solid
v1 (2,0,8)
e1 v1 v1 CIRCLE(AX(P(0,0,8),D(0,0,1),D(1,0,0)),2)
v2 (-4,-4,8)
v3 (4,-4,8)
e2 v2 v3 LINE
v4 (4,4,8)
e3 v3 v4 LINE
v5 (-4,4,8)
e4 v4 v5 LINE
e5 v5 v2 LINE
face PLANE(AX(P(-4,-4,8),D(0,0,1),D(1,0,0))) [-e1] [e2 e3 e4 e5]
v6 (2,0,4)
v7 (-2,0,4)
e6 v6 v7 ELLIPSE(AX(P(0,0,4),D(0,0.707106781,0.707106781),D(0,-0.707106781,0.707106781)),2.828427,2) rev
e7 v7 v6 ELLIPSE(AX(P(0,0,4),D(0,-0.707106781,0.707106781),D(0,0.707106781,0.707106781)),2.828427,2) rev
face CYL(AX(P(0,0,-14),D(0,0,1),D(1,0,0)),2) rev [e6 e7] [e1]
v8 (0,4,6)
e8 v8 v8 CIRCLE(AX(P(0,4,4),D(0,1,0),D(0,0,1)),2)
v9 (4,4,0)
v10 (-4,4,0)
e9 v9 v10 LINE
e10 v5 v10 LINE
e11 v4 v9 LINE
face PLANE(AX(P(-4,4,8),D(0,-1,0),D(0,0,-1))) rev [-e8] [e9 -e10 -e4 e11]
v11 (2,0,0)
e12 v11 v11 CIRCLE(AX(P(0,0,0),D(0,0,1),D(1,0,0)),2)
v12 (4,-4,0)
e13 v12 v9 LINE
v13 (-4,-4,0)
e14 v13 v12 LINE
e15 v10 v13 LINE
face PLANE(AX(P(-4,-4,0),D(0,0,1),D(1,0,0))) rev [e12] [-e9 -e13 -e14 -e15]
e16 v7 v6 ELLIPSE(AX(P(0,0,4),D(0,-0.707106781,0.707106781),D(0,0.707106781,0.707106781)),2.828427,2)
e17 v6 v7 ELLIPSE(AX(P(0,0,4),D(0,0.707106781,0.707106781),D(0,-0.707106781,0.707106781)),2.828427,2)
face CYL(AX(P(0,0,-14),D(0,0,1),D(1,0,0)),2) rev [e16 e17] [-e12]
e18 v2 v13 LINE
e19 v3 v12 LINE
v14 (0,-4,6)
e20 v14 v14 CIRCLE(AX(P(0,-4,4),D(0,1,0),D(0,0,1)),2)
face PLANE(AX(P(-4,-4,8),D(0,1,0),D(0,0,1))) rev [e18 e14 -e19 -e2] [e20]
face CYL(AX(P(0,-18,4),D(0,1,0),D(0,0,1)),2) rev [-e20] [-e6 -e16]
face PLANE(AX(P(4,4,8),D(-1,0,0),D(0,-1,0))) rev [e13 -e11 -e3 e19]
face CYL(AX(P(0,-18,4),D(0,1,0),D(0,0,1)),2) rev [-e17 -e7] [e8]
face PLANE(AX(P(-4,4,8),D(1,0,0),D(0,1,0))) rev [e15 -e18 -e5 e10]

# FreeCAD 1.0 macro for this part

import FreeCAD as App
import Part
import Sketcher

V = App.Vector

doc = App.newDocument("Part")
body = doc.addObject("PartDesign::Body", "Body")

# Sketch on XY plane
sketch1 = body.newObject("Sketcher::SketchObject", "Sketch")
sketch1.AttachmentSupport = (doc.getObject("XY_Plane"), [""])
sketch1.MapMode = "FlatFace"
sketch1.addGeometry(Part.LineSegment(V(-4, 4, 0), V(-4, -4, 0)), False)
sketch1.addGeometry(Part.LineSegment(V(-4, -4, 0), V(4, -4, 0)), False)
sketch1.addGeometry(Part.LineSegment(V(4, -4, 0), V(4, 4, 0)), False)
sketch1.addGeometry(Part.LineSegment(V(4, 4, 0), V(-4, 4, 0)), False)
sketch1.addConstraint(Sketcher.Constraint("Coincident", 0, 2, 1, 1))
sketch1.addConstraint(Sketcher.Constraint("Coincident", 1, 2, 2, 1))
sketch1.addConstraint(Sketcher.Constraint("Coincident", 2, 2, 3, 1))
sketch1.addConstraint(Sketcher.Constraint("Coincident", 3, 2, 0, 1))
sketch1.addConstraint(Sketcher.Constraint("Vertical", 0))
sketch1.addConstraint(Sketcher.Constraint("Horizontal", 1))
sketch1.addConstraint(Sketcher.Constraint("Vertical", 2))
sketch1.addConstraint(Sketcher.Constraint("Horizontal", 3))
sketch1.addConstraint(Sketcher.Constraint("Symmetric", 0, 2, 2, 2, -1, 1))
sketch1.addConstraint(Sketcher.Constraint("Equal", 3, 0))
sketch1.addConstraint(Sketcher.Constraint("DistanceX", 1, 1, 1, 2, 8.0))
pad1 = body.newObject("PartDesign::Pad", "Pad")
pad1.Profile = sketch1
pad1.Length = 8

# Sketch on XY plane
sketch2 = body.newObject("Sketcher::SketchObject", "Sketch001")
sketch2.AttachmentSupport = (doc.getObject("XY_Plane"), [""])
sketch2.MapMode = "FlatFace"
sketch2.AttachmentOffset = App.Placement(V(0, 0, 8), App.Rotation())
sketch2.addGeometry(Part.Circle(V(0, 0, 0), V(0, 0, 1), 2), False)
sketch2.addConstraint(Sketcher.Constraint("Coincident", 0, 3, -1, 1))
sketch2.addConstraint(Sketcher.Constraint("Diameter", 0, 4.0))
pocket1 = body.newObject("PartDesign::Pocket", "Pocket")
pocket1.Profile = sketch2
pocket1.Length = 22

# Sketch on XZ plane
sketch3 = body.newObject("Sketcher::SketchObject", "Sketch002")
sketch3.AttachmentSupport = (doc.getObject("XZ_Plane"), [""])
sketch3.MapMode = "FlatFace"
sketch3.AttachmentOffset = App.Placement(V(0, 0, -4), App.Rotation())
sketch3.addGeometry(Part.Circle(V(0, 4, 0), V(0, 0, 1), 2), False)
sketch3.addConstraint(Sketcher.Constraint("PointOnObject", 0, 3, -2))
sketch3.addConstraint(Sketcher.Constraint("Diameter", 0, 4.0))
sketch3.addConstraint(Sketcher.Constraint("DistanceY", -1, 1, 0, 3, 4.0))
pocket2 = body.newObject("PartDesign::Pocket", "Pocket001")
pocket2.Profile = sketch3
pocket2.Length = 22
pocket2.Reversed = True

doc.recompute()
